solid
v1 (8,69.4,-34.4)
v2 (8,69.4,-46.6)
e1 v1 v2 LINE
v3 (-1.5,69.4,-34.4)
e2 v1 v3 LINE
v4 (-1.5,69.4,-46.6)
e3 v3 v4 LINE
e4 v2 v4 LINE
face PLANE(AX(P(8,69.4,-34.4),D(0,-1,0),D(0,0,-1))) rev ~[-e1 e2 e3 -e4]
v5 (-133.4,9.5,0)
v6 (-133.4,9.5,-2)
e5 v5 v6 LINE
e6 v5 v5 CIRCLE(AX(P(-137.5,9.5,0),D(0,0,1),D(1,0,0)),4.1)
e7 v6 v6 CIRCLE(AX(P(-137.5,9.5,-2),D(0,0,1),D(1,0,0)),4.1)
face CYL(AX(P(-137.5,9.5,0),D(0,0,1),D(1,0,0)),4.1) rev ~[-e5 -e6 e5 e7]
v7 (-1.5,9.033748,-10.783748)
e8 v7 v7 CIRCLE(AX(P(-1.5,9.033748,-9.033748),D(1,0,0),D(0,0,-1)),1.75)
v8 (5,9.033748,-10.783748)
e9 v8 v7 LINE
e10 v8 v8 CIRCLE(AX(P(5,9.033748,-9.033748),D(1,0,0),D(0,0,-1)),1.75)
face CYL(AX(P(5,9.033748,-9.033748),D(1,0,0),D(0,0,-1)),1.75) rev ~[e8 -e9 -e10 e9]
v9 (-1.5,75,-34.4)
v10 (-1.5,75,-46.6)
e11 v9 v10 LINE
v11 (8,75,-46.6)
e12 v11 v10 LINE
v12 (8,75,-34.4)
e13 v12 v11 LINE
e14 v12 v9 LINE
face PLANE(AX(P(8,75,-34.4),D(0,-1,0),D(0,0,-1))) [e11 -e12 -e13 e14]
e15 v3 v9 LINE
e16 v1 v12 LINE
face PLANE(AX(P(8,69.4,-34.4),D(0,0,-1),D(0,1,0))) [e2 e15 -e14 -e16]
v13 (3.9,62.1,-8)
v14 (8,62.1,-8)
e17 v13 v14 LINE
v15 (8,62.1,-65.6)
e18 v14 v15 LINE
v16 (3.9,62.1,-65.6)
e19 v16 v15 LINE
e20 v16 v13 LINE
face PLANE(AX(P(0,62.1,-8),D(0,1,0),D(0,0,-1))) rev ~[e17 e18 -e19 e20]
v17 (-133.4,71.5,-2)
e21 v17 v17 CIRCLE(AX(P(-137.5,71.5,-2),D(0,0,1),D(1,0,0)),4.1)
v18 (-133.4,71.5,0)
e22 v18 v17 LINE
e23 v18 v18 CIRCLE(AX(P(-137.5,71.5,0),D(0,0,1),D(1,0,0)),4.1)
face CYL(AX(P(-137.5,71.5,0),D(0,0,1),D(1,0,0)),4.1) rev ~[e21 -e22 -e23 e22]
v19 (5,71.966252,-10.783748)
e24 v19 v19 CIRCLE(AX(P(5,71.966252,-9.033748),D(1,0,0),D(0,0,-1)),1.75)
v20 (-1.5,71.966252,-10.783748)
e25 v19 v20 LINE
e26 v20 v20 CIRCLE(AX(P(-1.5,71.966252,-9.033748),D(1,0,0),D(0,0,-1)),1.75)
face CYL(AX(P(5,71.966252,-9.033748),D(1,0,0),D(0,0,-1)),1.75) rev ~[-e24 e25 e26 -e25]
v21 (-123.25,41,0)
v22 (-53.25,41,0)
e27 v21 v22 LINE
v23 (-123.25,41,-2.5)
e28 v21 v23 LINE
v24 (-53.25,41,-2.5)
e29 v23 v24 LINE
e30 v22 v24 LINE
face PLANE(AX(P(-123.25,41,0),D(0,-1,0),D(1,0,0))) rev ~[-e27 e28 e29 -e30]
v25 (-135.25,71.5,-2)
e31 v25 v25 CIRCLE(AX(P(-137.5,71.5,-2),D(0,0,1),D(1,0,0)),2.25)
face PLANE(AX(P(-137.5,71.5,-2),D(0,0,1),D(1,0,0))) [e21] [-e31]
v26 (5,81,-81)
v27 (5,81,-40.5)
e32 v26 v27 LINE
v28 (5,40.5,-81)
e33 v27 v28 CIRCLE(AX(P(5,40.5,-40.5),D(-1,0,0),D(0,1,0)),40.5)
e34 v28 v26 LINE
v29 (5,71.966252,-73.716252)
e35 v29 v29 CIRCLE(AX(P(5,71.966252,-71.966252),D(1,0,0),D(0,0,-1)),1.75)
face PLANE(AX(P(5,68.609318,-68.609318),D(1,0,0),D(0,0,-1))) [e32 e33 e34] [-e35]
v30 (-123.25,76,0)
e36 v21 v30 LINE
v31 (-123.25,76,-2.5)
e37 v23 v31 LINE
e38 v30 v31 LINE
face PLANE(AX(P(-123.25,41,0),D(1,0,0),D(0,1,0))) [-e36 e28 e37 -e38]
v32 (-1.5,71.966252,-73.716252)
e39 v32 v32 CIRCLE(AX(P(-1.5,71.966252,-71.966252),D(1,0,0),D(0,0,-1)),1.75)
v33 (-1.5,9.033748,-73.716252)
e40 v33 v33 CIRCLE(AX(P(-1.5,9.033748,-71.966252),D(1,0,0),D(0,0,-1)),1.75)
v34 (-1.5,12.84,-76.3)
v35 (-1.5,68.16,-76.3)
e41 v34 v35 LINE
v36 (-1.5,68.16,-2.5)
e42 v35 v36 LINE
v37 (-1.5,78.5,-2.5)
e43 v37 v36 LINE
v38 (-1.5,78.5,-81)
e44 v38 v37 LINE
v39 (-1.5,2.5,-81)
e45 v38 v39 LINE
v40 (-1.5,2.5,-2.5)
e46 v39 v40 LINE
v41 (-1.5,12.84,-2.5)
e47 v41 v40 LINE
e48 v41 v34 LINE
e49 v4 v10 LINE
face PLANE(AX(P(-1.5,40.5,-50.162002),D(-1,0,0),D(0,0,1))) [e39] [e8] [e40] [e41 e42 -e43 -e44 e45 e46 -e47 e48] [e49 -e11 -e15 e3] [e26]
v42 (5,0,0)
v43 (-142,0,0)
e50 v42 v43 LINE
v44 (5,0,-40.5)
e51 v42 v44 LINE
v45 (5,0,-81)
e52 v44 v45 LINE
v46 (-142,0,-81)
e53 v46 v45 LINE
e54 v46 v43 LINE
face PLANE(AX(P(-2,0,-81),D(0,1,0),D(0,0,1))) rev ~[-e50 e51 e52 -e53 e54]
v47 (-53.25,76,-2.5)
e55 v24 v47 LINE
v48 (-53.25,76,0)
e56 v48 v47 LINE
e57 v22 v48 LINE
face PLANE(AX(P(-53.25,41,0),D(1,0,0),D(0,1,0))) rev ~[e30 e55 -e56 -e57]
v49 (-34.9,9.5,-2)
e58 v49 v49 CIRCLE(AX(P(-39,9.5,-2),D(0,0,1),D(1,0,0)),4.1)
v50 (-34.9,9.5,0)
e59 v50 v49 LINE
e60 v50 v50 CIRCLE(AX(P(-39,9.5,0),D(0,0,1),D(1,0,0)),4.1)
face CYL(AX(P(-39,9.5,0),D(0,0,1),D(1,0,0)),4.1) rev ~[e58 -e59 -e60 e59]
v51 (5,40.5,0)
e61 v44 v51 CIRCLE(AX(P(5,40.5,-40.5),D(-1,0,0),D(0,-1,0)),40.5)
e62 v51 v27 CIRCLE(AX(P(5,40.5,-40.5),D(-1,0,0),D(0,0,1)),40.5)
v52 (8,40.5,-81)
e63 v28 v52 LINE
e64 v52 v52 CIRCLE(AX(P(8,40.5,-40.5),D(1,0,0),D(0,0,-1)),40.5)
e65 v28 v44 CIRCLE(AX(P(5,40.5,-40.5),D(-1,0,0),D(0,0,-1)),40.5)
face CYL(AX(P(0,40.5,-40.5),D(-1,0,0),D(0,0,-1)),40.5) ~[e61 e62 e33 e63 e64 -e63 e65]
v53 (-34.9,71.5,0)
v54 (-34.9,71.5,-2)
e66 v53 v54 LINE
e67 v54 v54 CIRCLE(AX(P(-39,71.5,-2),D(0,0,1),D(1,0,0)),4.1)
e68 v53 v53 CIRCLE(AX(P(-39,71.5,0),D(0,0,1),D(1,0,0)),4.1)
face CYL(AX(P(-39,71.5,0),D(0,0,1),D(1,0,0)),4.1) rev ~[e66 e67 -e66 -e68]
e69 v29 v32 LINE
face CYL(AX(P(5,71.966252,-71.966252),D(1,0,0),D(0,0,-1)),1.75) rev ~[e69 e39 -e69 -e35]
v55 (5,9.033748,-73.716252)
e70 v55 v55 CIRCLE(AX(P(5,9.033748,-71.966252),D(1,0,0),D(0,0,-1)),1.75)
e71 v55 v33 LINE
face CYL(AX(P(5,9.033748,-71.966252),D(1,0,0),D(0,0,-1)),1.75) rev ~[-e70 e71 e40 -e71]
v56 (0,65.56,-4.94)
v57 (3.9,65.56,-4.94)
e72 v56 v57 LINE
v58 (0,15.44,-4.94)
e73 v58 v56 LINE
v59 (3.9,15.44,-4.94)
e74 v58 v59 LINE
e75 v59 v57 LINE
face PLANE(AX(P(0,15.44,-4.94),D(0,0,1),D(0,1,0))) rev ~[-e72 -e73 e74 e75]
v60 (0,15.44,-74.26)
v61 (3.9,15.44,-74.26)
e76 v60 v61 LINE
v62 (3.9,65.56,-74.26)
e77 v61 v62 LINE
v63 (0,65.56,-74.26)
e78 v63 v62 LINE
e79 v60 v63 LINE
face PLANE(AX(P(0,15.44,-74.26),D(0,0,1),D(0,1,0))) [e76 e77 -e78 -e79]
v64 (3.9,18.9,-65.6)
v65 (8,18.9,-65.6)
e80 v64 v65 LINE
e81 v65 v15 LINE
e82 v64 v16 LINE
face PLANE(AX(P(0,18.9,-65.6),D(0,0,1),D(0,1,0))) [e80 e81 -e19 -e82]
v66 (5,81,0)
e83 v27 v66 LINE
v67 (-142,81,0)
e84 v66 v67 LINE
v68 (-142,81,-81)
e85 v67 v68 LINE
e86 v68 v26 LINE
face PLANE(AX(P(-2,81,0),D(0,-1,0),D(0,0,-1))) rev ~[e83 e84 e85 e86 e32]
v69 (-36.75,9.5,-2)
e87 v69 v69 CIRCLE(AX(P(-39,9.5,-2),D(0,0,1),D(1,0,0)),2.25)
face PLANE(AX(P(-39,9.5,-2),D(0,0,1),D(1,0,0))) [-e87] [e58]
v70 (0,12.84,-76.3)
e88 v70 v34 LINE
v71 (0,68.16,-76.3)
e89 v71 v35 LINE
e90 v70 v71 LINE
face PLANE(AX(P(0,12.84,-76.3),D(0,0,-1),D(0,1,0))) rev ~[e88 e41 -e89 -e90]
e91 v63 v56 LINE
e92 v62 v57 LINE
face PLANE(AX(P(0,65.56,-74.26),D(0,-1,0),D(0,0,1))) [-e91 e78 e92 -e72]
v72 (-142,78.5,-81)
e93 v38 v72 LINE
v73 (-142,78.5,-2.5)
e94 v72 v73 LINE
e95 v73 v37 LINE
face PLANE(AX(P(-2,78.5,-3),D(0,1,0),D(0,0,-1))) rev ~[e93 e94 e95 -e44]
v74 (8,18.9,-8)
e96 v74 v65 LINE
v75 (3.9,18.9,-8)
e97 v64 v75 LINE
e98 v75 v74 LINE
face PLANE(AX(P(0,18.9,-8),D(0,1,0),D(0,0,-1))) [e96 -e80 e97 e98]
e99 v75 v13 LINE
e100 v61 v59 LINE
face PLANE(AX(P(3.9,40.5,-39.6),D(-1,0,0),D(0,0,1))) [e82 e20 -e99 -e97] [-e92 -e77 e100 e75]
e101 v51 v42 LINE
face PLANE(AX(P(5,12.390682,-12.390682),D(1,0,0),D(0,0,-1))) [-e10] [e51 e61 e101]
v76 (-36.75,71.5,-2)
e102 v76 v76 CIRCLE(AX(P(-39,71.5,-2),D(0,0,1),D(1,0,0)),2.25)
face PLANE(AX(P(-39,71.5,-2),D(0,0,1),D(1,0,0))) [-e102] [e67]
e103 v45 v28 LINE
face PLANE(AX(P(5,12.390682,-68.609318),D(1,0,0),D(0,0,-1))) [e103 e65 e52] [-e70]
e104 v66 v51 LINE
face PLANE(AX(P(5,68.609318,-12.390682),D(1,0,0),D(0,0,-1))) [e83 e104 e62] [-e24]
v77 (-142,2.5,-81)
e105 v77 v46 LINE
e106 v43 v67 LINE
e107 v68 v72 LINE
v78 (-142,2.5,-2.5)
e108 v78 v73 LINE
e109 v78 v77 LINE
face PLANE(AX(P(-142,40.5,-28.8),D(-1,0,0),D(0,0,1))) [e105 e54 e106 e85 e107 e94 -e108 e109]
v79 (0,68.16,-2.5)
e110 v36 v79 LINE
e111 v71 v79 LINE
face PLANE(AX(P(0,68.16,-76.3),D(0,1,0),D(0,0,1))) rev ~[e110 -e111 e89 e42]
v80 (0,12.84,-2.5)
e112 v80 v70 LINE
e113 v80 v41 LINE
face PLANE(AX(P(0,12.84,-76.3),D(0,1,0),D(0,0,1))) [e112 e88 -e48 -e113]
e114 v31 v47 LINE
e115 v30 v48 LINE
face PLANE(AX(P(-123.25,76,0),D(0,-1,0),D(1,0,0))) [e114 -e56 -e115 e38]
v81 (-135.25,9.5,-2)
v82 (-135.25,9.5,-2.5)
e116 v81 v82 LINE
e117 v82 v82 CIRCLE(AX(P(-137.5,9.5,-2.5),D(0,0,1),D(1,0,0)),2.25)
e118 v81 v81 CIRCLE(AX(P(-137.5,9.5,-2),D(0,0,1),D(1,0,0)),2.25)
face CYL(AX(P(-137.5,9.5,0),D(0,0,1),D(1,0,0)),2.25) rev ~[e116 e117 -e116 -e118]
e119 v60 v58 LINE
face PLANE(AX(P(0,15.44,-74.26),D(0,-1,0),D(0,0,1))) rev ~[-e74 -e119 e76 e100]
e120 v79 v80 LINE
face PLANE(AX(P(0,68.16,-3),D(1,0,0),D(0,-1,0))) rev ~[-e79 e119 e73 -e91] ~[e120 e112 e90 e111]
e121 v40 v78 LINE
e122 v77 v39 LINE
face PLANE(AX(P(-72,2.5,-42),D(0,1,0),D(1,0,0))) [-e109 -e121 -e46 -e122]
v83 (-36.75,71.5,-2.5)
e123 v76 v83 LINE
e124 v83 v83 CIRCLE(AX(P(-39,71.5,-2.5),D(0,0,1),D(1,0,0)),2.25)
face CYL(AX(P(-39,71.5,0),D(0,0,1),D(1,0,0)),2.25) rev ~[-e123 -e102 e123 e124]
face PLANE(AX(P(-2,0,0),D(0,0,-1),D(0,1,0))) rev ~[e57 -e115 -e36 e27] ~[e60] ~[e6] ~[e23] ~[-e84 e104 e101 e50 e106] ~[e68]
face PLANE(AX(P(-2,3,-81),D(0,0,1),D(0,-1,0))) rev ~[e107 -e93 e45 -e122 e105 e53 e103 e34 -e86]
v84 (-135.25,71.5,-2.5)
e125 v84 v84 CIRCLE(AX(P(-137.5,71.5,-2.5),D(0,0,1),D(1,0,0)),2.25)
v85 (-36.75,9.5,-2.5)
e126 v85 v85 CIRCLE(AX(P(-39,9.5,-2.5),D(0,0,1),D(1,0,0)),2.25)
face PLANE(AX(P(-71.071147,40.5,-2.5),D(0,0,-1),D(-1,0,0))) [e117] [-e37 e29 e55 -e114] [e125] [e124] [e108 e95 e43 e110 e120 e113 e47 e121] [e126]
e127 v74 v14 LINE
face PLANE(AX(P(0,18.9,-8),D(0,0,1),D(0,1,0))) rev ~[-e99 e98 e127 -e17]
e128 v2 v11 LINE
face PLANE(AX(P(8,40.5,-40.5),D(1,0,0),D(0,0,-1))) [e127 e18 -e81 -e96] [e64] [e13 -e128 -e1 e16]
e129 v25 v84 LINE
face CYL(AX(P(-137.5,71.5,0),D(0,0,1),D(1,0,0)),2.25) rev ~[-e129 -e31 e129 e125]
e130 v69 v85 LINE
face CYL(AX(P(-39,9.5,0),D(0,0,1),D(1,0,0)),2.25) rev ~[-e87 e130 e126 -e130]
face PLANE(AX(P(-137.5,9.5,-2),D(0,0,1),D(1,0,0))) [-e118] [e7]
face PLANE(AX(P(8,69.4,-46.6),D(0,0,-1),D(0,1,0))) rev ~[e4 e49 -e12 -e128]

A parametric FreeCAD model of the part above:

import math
import FreeCAD as App
import Part
import Sketcher

V = App.Vector
Q = App.Units.Quantity


def add_polygon(sketch, points):
    """Adds a closed chain of lines whose ends are joined by coincident constraints."""
    first, n = sketch.GeometryCount, len(points)
    for a, b in zip(points, points[1:] + points[:1]):
        sketch.addGeometry(Part.LineSegment(App.Vector(*a, 0), App.Vector(*b, 0)), False)
    for i in range(n):
        sketch.addConstraint(Sketcher.Constraint("Coincident", first + i, 2, first + (i + 1) % n, 1))

doc = App.newDocument("Part")
body = doc.addObject("PartDesign::Body", "Body")

# Sketch on YZ plane
sketch1 = body.newObject("Sketcher::SketchObject", "Sketch")
sketch1.AttachmentSupport = (doc.getObject("YZ_Plane"), [""])
sketch1.MapMode = "FlatFace"
sketch1.addGeometry(Part.Circle(V(40, -40, 0), V(0, 0, 1), 40), False)  # 0
add_polygon(sketch1, [(19, -66), (19, -8), (62, -8), (62, -66)])  # lines 1-4
sketch1.addConstraint(Sketcher.Constraint("Vertical", 1))
sketch1.addConstraint(Sketcher.Constraint("Horizontal", 2))
sketch1.addConstraint(Sketcher.Constraint("Vertical", 3))
sketch1.addConstraint(Sketcher.Constraint("Horizontal", 4))
sketch1.addConstraint(Sketcher.Constraint("Diameter", 0, Q("81 mm")))
sketch1.addConstraint(Sketcher.Constraint("DistanceX", 2, 1, 2, 2, Q("43.2 mm")))
sketch1.addConstraint(Sketcher.Constraint("DistanceY", 1, 1, 1, 2, Q("57.6 mm")))
sketch1.addConstraint(Sketcher.Constraint("DistanceY", 1, 2, -1, 1, Q("8 mm")))
sketch1.addConstraint(Sketcher.Constraint("DistanceX", -1, 1, 0, 3, Q("40.5 mm")))
sketch1.addConstraint(Sketcher.Constraint("DistanceY", 0, 3, -1, 1, Q("40.5 mm")))
sketch1.addConstraint(Sketcher.Constraint("DistanceX", -1, 1, 1, 2, Q("18.9 mm")))
pad1 = body.newObject("PartDesign::Pad", "Pad")
pad1.Profile = sketch1
pad1.Length = 8

# Sketch on YZ plane
sketch2 = body.newObject("Sketcher::SketchObject", "Sketch001")
sketch2.AttachmentSupport = (doc.getObject("YZ_Plane"), [""])
sketch2.MapMode = "FlatFace"
sketch2.addGeometry(Part.LineSegment(V(81, -40, 0), V(81, 0, 0)), False)
sketch2.addGeometry(Part.LineSegment(V(81, 0, 0), V(40, 0, 0)), False)
sketch2.addGeometry(Part.ArcOfCircle(Part.Circle(V(40, -40, 0), V(0, 0, 1), 40), math.radians(0), math.radians(90)), False)
sketch2.addGeometry(Part.LineSegment(V(81, -81, 0), V(81, -40, 0)), False)
sketch2.addGeometry(Part.ArcOfCircle(Part.Circle(V(40, -40, 0), V(0, 0, 1), 40), math.radians(-90), math.radians(0)), False)
sketch2.addGeometry(Part.LineSegment(V(40, -81, 0), V(81, -81, 0)), False)
sketch2.addGeometry(Part.LineSegment(V(0, -81, 0), V(40, -81, 0)), False)
sketch2.addGeometry(Part.ArcOfCircle(Part.Circle(V(40, -40, 0), V(0, 0, 1), 40), math.radians(180), math.radians(270)), False)
sketch2.addGeometry(Part.LineSegment(V(0, -40, 0), V(0, -81, 0)), False)
sketch2.addGeometry(Part.ArcOfCircle(Part.Circle(V(40, -40, 0), V(0, 0, 1), 40), math.radians(90), math.radians(180)), False)
sketch2.addGeometry(Part.LineSegment(V(40, 0, 0), V(0, 0, 0)), False)
sketch2.addGeometry(Part.LineSegment(V(0, 0, 0), V(0, -40, 0)), False)
sketch2.addConstraint(Sketcher.Constraint("Coincident", 0, 2, 1, 1))
sketch2.addConstraint(Sketcher.Constraint("Tangent", 1, 2, 2, 2))
sketch2.addConstraint(Sketcher.Constraint("Tangent", 2, 1, 0, 1))
sketch2.addConstraint(Sketcher.Constraint("Tangent", 3, 2, 4, 2))
sketch2.addConstraint(Sketcher.Constraint("Tangent", 4, 1, 5, 1))
sketch2.addConstraint(Sketcher.Constraint("Coincident", 5, 2, 3, 1))
sketch2.addConstraint(Sketcher.Constraint("Tangent", 6, 2, 7, 2))
sketch2.addConstraint(Sketcher.Constraint("Tangent", 7, 1, 8, 1))
sketch2.addConstraint(Sketcher.Constraint("Coincident", 8, 2, 6, 1))
sketch2.addConstraint(Sketcher.Constraint("Tangent", 9, 1, 10, 1))
sketch2.addConstraint(Sketcher.Constraint("Coincident", 10, 2, 11, 1))
sketch2.addConstraint(Sketcher.Constraint("Tangent", 11, 2, 9, 2))
sketch2.addConstraint(Sketcher.Constraint("Vertical", 0))
sketch2.addConstraint(Sketcher.Constraint("Horizontal", 1))
sketch2.addConstraint(Sketcher.Constraint("Vertical", 3))
sketch2.addConstraint(Sketcher.Constraint("Horizontal", 5))
sketch2.addConstraint(Sketcher.Constraint("Horizontal", 6))
sketch2.addConstraint(Sketcher.Constraint("Vertical", 8))
sketch2.addConstraint(Sketcher.Constraint("Horizontal", 10))
sketch2.addConstraint(Sketcher.Constraint("Vertical", 11))
sketch2.addConstraint(Sketcher.Constraint("Coincident", 10, 2, -1, 1))
sketch2.addConstraint(Sketcher.Constraint("Coincident", 4, 3, 2, 3))
sketch2.addConstraint(Sketcher.Constraint("Coincident", 7, 3, 2, 3))
sketch2.addConstraint(Sketcher.Constraint("Coincident", 9, 3, 2, 3))
sketch2.addConstraint(Sketcher.Constraint("Equal", 2, 4))
sketch2.addConstraint(Sketcher.Constraint("Equal", 4, 7))
sketch2.addConstraint(Sketcher.Constraint("Equal", 7, 9))
sketch2.addConstraint(Sketcher.Constraint("Radius", 2, Q("40.5 mm")))
pad2 = body.newObject("PartDesign::Pad", "Pad001")
pad2.Profile = sketch2
pad2.Length = 5

# Sketch on YZ plane
sketch3 = body.newObject("Sketcher::SketchObject", "Sketch002")
sketch3.AttachmentSupport = (doc.getObject("YZ_Plane"), [""])
sketch3.MapMode = "FlatFace"
add_polygon(sketch3, [(66, -74), (15, -74), (15, -5), (66, -5)])  # lines 0-3
add_polygon(sketch3, [(19, -8), (19, -66), (62, -66), (62, -8)])  # lines 4-7
sketch3.addConstraint(Sketcher.Constraint("Horizontal", 0))
sketch3.addConstraint(Sketcher.Constraint("Vertical", 1))
sketch3.addConstraint(Sketcher.Constraint("Horizontal", 2))
sketch3.addConstraint(Sketcher.Constraint("Vertical", 3))
sketch3.addConstraint(Sketcher.Constraint("Vertical", 4))
sketch3.addConstraint(Sketcher.Constraint("Horizontal", 5))
sketch3.addConstraint(Sketcher.Constraint("Vertical", 6))
sketch3.addConstraint(Sketcher.Constraint("Horizontal", 7))
sketch3.addConstraint(Sketcher.Constraint("DistanceX", 5, 1, 5, 2, Q("43.2 mm")))
sketch3.addConstraint(Sketcher.Constraint("DistanceY", 4, 2, 4, 1, Q("57.6 mm")))
sketch3.addConstraint(Sketcher.Constraint("DistanceY", 6, 2, -1, 1, Q("8 mm")))
sketch3.addConstraint(Sketcher.Constraint("DistanceX", 0, 2, 0, 1, Q("50.12 mm")))
sketch3.addConstraint(Sketcher.Constraint("DistanceY", 1, 1, 1, 2, Q("69.32 mm")))
sketch3.addConstraint(Sketcher.Constraint("DistanceX", -1, 1, 4, 2, Q("18.9 mm")))
sketch3.addConstraint(Sketcher.Constraint("DistanceX", -1, 1, 0, 2, Q("15.44 mm")))
sketch3.addConstraint(Sketcher.Constraint("DistanceY", 0, 2, -1, 1, Q("74.26 mm")))
pocket1 = body.newObject("PartDesign::Pocket", "Pocket")
pocket1.Profile = sketch3
pocket1.Length = 3.9
pocket1.Reversed = True

# Sketch on YZ plane
sketch4 = body.newObject("Sketcher::SketchObject", "Sketch003")
sketch4.AttachmentSupport = (doc.getObject("YZ_Plane"), [""])
sketch4.MapMode = "FlatFace"
add_polygon(sketch4, [(81, -81), (0, -81), (0, 0), (81, 0)])  # lines 0-3
add_polygon(sketch4, [(13, -3), (13, -76), (68, -76), (68, -3)])  # lines 4-7
sketch4.addConstraint(Sketcher.Constraint("Horizontal", 0))
sketch4.addConstraint(Sketcher.Constraint("Vertical", 1))
sketch4.addConstraint(Sketcher.Constraint("Horizontal", 2))
sketch4.addConstraint(Sketcher.Constraint("Vertical", 3))
sketch4.addConstraint(Sketcher.Constraint("Vertical", 4))
sketch4.addConstraint(Sketcher.Constraint("Horizontal", 5))
sketch4.addConstraint(Sketcher.Constraint("Vertical", 6))
sketch4.addConstraint(Sketcher.Constraint("Horizontal", 7))
sketch4.addConstraint(Sketcher.Constraint("Coincident", 1, 2, -1, 1))
sketch4.addConstraint(Sketcher.Constraint("Equal", 2, 1))
sketch4.addConstraint(Sketcher.Constraint("DistanceX", 0, 2, 0, 1, Q("81 mm")))
sketch4.addConstraint(Sketcher.Constraint("DistanceY", 4, 2, 4, 1, Q("73.3 mm")))
sketch4.addConstraint(Sketcher.Constraint("DistanceY", 6, 2, -1, 1, Q("3 mm")))
sketch4.addConstraint(Sketcher.Constraint("DistanceX", 5, 1, 5, 2, Q("55.32 mm")))
sketch4.addConstraint(Sketcher.Constraint("DistanceX", -1, 1, 4, 2, Q("12.84 mm")))
pad3 = body.newObject("PartDesign::Pad", "Pad002")
pad3.Profile = sketch4
pad3.Length = 2
pad3.Reversed = True

# Sketch on YZ plane
sketch5 = body.newObject("Sketcher::SketchObject", "Sketch004")
sketch5.AttachmentSupport = (doc.getObject("YZ_Plane"), [""])
sketch5.MapMode = "FlatFace"
sketch5.AttachmentOffset = App.Placement(V(0, 0, -2), App.Rotation())
add_polygon(sketch5, [(0, -81), (0, 0), (81, 0), (81, -81), (78, -81), (78, -3), (3, -3), (3, -81)])  # lines 0-7
sketch5.addConstraint(Sketcher.Constraint("Vertical", 0))
sketch5.addConstraint(Sketcher.Constraint("Horizontal", 1))
sketch5.addConstraint(Sketcher.Constraint("Vertical", 2))
sketch5.addConstraint(Sketcher.Constraint("Horizontal", 3))
sketch5.addConstraint(Sketcher.Constraint("Vertical", 4))
sketch5.addConstraint(Sketcher.Constraint("Horizontal", 5))
sketch5.addConstraint(Sketcher.Constraint("Vertical", 6))
sketch5.addConstraint(Sketcher.Constraint("Horizontal", 7))
sketch5.addConstraint(Sketcher.Constraint("Coincident", 0, 2, -1, 1))
sketch5.addConstraint(Sketcher.Constraint("Horizontal", 3, 2, 6, 2))
sketch5.addConstraint(Sketcher.Constraint("Equal", 3, 7))
sketch5.addConstraint(Sketcher.Constraint("Equal", 1, 0))
sketch5.addConstraint(Sketcher.Constraint("DistanceX", 1, 1, 1, 2, Q("81 mm")))
sketch5.addConstraint(Sketcher.Constraint("DistanceX", 3, 2, 3, 1, Q("3 mm")))
sketch5.addConstraint(Sketcher.Constraint("DistanceY", 4, 1, 4, 2, Q("78 mm")))
pad4 = body.newObject("PartDesign::Pad", "Pad003")
pad4.Profile = sketch5
pad4.Length = 140
pad4.Reversed = True

# Sketch on XY plane
sketch6 = body.newObject("Sketcher::SketchObject", "Sketch005")
sketch6.AttachmentSupport = (doc.getObject("XY_Plane"), [""])
sketch6.MapMode = "FlatFace"
sketch6.addGeometry(Part.Circle(V(-137.5, 71.5, 0), V(0, 0, 1), 2.2), False)
sketch6.addConstraint(Sketcher.Constraint("Diameter", 0, Q("4.5 mm")))
sketch6.addConstraint(Sketcher.Constraint("DistanceX", 0, 3, -1, 1, Q("137.5 mm")))
sketch6.addConstraint(Sketcher.Constraint("DistanceY", -1, 1, 0, 3, Q("71.5 mm")))
pocket2 = body.newObject("PartDesign::Pocket", "Pocket001")
pocket2.Profile = sketch6
pocket2.Type = "UpToFirst"

# Sketch on XY plane
sketch7 = body.newObject("Sketcher::SketchObject", "Sketch006")
sketch7.AttachmentSupport = (doc.getObject("XY_Plane"), [""])
sketch7.MapMode = "FlatFace"
sketch7.addGeometry(Part.Circle(V(-39, 71.5, 0), V(0, 0, 1), 2.2), False)
sketch7.addConstraint(Sketcher.Constraint("Diameter", 0, Q("4.5 mm")))
sketch7.addConstraint(Sketcher.Constraint("DistanceX", 0, 3, -1, 1, Q("39 mm")))
sketch7.addConstraint(Sketcher.Constraint("DistanceY", -1, 1, 0, 3, Q("71.5 mm")))
pocket3 = body.newObject("PartDesign::Pocket", "Pocket002")
pocket3.Profile = sketch7
pocket3.Type = "UpToFirst"

# Sketch on XY plane
sketch8 = body.newObject("Sketcher::SketchObject", "Sketch007")
sketch8.AttachmentSupport = (doc.getObject("XY_Plane"), [""])
sketch8.MapMode = "FlatFace"
sketch8.addGeometry(Part.Circle(V(-137.5, 9.5, 0), V(0, 0, 1), 2.2), False)
sketch8.addConstraint(Sketcher.Constraint("Diameter", 0, Q("4.5 mm")))
sketch8.addConstraint(Sketcher.Constraint("DistanceX", 0, 3, -1, 1, Q("137.5 mm")))
sketch8.addConstraint(Sketcher.Constraint("DistanceY", -1, 1, 0, 3, Q("9.5 mm")))
pocket4 = body.newObject("PartDesign::Pocket", "Pocket003")
pocket4.Profile = sketch8
pocket4.Type = "UpToFirst"

# Sketch on XY plane
sketch9 = body.newObject("Sketcher::SketchObject", "Sketch008")
sketch9.AttachmentSupport = (doc.getObject("XY_Plane"), [""])
sketch9.MapMode = "FlatFace"
sketch9.addGeometry(Part.Circle(V(-39, 9.5, 0), V(0, 0, 1), 2.2), False)
sketch9.addConstraint(Sketcher.Constraint("Diameter", 0, Q("4.5 mm")))
sketch9.addConstraint(Sketcher.Constraint("DistanceX", 0, 3, -1, 1, Q("39 mm")))
sketch9.addConstraint(Sketcher.Constraint("DistanceY", -1, 1, 0, 3, Q("9.5 mm")))
pocket5 = body.newObject("PartDesign::Pocket", "Pocket004")
pocket5.Profile = sketch9
pocket5.Type = "UpToFirst"

# Sketch on XY plane
sketch10 = body.newObject("Sketcher::SketchObject", "Sketch009")
sketch10.AttachmentSupport = (doc.getObject("XY_Plane"), [""])
sketch10.MapMode = "FlatFace"
sketch10.addGeometry(Part.Circle(V(-137.5, 71.5, 0), V(0, 0, 1), 4.1), False)
sketch10.addGeometry(Part.Circle(V(-39, 71.5, 0), V(0, 0, 1), 4.1), False)
sketch10.addGeometry(Part.Circle(V(-39, 9.5, 0), V(0, 0, 1), 4.1), False)
sketch10.addGeometry(Part.Circle(V(-137.5, 9.5, 0), V(0, 0, 1), 4.1), False)
sketch10.addConstraint(Sketcher.Constraint("Equal", 0, 1))
sketch10.addConstraint(Sketcher.Constraint("Equal", 1, 2))
sketch10.addConstraint(Sketcher.Constraint("Equal", 2, 3))
sketch10.addConstraint(Sketcher.Constraint("Horizontal", 0, 3, 1, 3))
sketch10.addConstraint(Sketcher.Constraint("Horizontal", 2, 3, 3, 3))
sketch10.addConstraint(Sketcher.Constraint("Vertical", 1, 3, 2, 3))
sketch10.addConstraint(Sketcher.Constraint("Vertical", 0, 3, 3, 3))
sketch10.addConstraint(Sketcher.Constraint("Diameter", 0, Q("8.2 mm")))
sketch10.addConstraint(Sketcher.Constraint("DistanceX", 1, 3, -1, 1, Q("39 mm")))
sketch10.addConstraint(Sketcher.Constraint("DistanceY", 2, 3, 1, 3, Q("62 mm")))
sketch10.addConstraint(Sketcher.Constraint("DistanceX", 0, 3, -1, 1, Q("137.5 mm")))
sketch10.addConstraint(Sketcher.Constraint("DistanceY", -1, 1, 0, 3, Q("71.5 mm")))
pocket6 = body.newObject("PartDesign::Pocket", "Pocket005")
pocket6.Profile = sketch10
pocket6.Length = 2

# Sketch on XY plane
sketch11 = body.newObject("Sketcher::SketchObject", "Sketch010")
sketch11.AttachmentSupport = (doc.getObject("XY_Plane"), [""])
sketch11.MapMode = "FlatFace"
add_polygon(sketch11, [(-123, 76), (-123, 41), (-53, 41), (-53, 76)])  # lines 0-3
sketch11.addConstraint(Sketcher.Constraint("Vertical", 0))
sketch11.addConstraint(Sketcher.Constraint("Horizontal", 1))
sketch11.addConstraint(Sketcher.Constraint("Vertical", 2))
sketch11.addConstraint(Sketcher.Constraint("Horizontal", 3))
sketch11.addConstraint(Sketcher.Constraint("DistanceX", 1, 1, 1, 2, Q("70 mm")))
sketch11.addConstraint(Sketcher.Constraint("DistanceY", 0, 2, 0, 1, Q("35 mm")))
sketch11.addConstraint(Sketcher.Constraint("DistanceY", -1, 1, 0, 2, Q("41 mm")))
sketch11.addConstraint(Sketcher.Constraint("DistanceX", 0, 2, -1, 1, Q("123.25 mm")))
pocket7 = body.newObject("PartDesign::Pocket", "Pocket006")
pocket7.Profile = sketch11
pocket7.Type = "UpToFirst"

# Sketch on YZ plane
sketch12 = body.newObject("Sketcher::SketchObject", "Sketch011")
sketch12.AttachmentSupport = (doc.getObject("YZ_Plane"), [""])
sketch12.MapMode = "FlatFace"
sketch12.AttachmentOffset = App.Placement(V(0, 0, 5), App.Rotation())
sketch12.addGeometry(Part.Circle(V(72, -9, 0), V(0, 0, 1), 1.8), False)
sketch12.addConstraint(Sketcher.Constraint("Diameter", 0, Q("3.5 mm")))
sketch12.addConstraint(Sketcher.Constraint("DistanceX", -1, 1, 0, 3, Q("71.966252 mm")))
sketch12.addConstraint(Sketcher.Constraint("DistanceY", 0, 3, -1, 1, Q("9.033748 mm")))
pocket8 = body.newObject("PartDesign::Pocket", "Pocket007")
pocket8.Profile = sketch12
pocket8.Type = "UpToFirst"

# Sketch on YZ plane
sketch13 = body.newObject("Sketcher::SketchObject", "Sketch012")
sketch13.AttachmentSupport = (doc.getObject("YZ_Plane"), [""])
sketch13.MapMode = "FlatFace"
sketch13.AttachmentOffset = App.Placement(V(0, 0, 5), App.Rotation())
sketch13.addGeometry(Part.Circle(V(72, -72, 0), V(0, 0, 1), 1.8), False)
sketch13.addConstraint(Sketcher.Constraint("Diameter", 0, Q("3.5 mm")))
sketch13.addConstraint(Sketcher.Constraint("DistanceX", -1, 1, 0, 3, Q("71.966252 mm")))
sketch13.addConstraint(Sketcher.Constraint("DistanceY", 0, 3, -1, 1, Q("71.966252 mm")))
pocket9 = body.newObject("PartDesign::Pocket", "Pocket008")
pocket9.Profile = sketch13
pocket9.Type = "UpToFirst"

# Sketch on YZ plane
sketch14 = body.newObject("Sketcher::SketchObject", "Sketch013")
sketch14.AttachmentSupport = (doc.getObject("YZ_Plane"), [""])
sketch14.MapMode = "FlatFace"
sketch14.AttachmentOffset = App.Placement(V(0, 0, 5), App.Rotation())
sketch14.addGeometry(Part.Circle(V(9, -72, 0), V(0, 0, 1), 1.8), False)
sketch14.addConstraint(Sketcher.Constraint("Diameter", 0, Q("3.5 mm")))
sketch14.addConstraint(Sketcher.Constraint("DistanceX", -1, 1, 0, 3, Q("9.033748 mm")))
sketch14.addConstraint(Sketcher.Constraint("DistanceY", 0, 3, -1, 1, Q("71.966252 mm")))
pocket10 = body.newObject("PartDesign::Pocket", "Pocket009")
pocket10.Profile = sketch14
pocket10.Type = "UpToFirst"

# Sketch on YZ plane
sketch15 = body.newObject("Sketcher::SketchObject", "Sketch014")
sketch15.AttachmentSupport = (doc.getObject("YZ_Plane"), [""])
sketch15.MapMode = "FlatFace"
sketch15.AttachmentOffset = App.Placement(V(0, 0, 5), App.Rotation())
sketch15.addGeometry(Part.Circle(V(9, -9, 0), V(0, 0, 1), 1.8), False)
sketch15.addConstraint(Sketcher.Constraint("Diameter", 0, Q("3.5 mm")))
sketch15.addConstraint(Sketcher.Constraint("DistanceX", -1, 1, 0, 3, Q("9.033748 mm")))
sketch15.addConstraint(Sketcher.Constraint("DistanceY", 0, 3, -1, 1, Q("9.033748 mm")))
pocket11 = body.newObject("PartDesign::Pocket", "Pocket010")
pocket11.Profile = sketch15
pocket11.Type = "UpToFirst"

# Sketch on YZ plane
sketch16 = body.newObject("Sketcher::SketchObject", "Sketch015")
sketch16.AttachmentSupport = (doc.getObject("YZ_Plane"), [""])
sketch16.MapMode = "FlatFace"
sketch16.AttachmentOffset = App.Placement(V(0, 0, 8), App.Rotation())
add_polygon(sketch16, [(75, -34), (69, -34), (69, -47), (75, -47)])  # lines 0-3
sketch16.addConstraint(Sketcher.Constraint("Horizontal", 0))
sketch16.addConstraint(Sketcher.Constraint("Vertical", 1))
sketch16.addConstraint(Sketcher.Constraint("Horizontal", 2))
sketch16.addConstraint(Sketcher.Constraint("Vertical", 3))
sketch16.addConstraint(Sketcher.Constraint("DistanceX", 0, 2, 0, 1, Q("5.6 mm")))
sketch16.addConstraint(Sketcher.Constraint("DistanceY", 1, 2, 1, 1, Q("12.2 mm")))
sketch16.addConstraint(Sketcher.Constraint("DistanceX", -1, 1, 2, 2, Q("75 mm")))
sketch16.addConstraint(Sketcher.Constraint("DistanceY", 0, 2, -1, 1, Q("34.4 mm")))
pocket12 = body.newObject("PartDesign::Pocket", "Pocket011")
pocket12.Profile = sketch16
pocket12.Type = "UpToFirst"

# Sketch on XZ plane
sketch17 = body.newObject("Sketcher::SketchObject", "Sketch016")
sketch17.AttachmentSupport = (doc.getObject("XZ_Plane"), [""])
sketch17.MapMode = "FlatFace"
sketch17.AttachmentOffset = App.Placement(V(0, 0, -78), App.Rotation())
add_polygon(sketch17, [(-142, -3), (-142, -81), (-2, -81), (-2, -3)])  # lines 0-3
sketch17.addConstraint(Sketcher.Constraint("Vertical", 0))
sketch17.addConstraint(Sketcher.Constraint("Horizontal", 1))
sketch17.addConstraint(Sketcher.Constraint("Vertical", 2))
sketch17.addConstraint(Sketcher.Constraint("Horizontal", 3))
sketch17.addConstraint(Sketcher.Constraint("DistanceX", 1, 1, 1, 2, Q("140 mm")))
sketch17.addConstraint(Sketcher.Constraint("DistanceY", 0, 2, 0, 1, Q("78 mm")))
sketch17.addConstraint(Sketcher.Constraint("DistanceX", 0, 2, -1, 1, Q("142 mm")))
sketch17.addConstraint(Sketcher.Constraint("DistanceY", 0, 2, -1, 1, Q("81 mm")))
pocket13 = body.newObject("PartDesign::Pocket", "Pocket012")
pocket13.Profile = sketch17
pocket13.Length = 0.5

# Sketch on XZ plane
sketch18 = body.newObject("Sketcher::SketchObject", "Sketch017")
sketch18.AttachmentSupport = (doc.getObject("XZ_Plane"), [""])
sketch18.MapMode = "FlatFace"
sketch18.AttachmentOffset = App.Placement(V(0, 0, -3), App.Rotation())
add_polygon(sketch18, [(-142, -81), (-142, -3), (-2, -3), (-2, -81)])  # lines 0-3
sketch18.addConstraint(Sketcher.Constraint("Vertical", 0))
sketch18.addConstraint(Sketcher.Constraint("Horizontal", 1))
sketch18.addConstraint(Sketcher.Constraint("Vertical", 2))
sketch18.addConstraint(Sketcher.Constraint("Horizontal", 3))
sketch18.addConstraint(Sketcher.Constraint("DistanceX", 1, 1, 1, 2, Q("140 mm")))
sketch18.addConstraint(Sketcher.Constraint("DistanceY", 0, 1, 0, 2, Q("78 mm")))
sketch18.addConstraint(Sketcher.Constraint("DistanceX", 0, 2, -1, 1, Q("142 mm")))
sketch18.addConstraint(Sketcher.Constraint("DistanceY", 0, 2, -1, 1, Q("3 mm")))
pocket14 = body.newObject("PartDesign::Pocket", "Pocket013")
pocket14.Profile = sketch18
pocket14.Length = 0.5
pocket14.Reversed = True

# Sketch on YZ plane
sketch19 = body.newObject("Sketcher::SketchObject", "Sketch018")
sketch19.AttachmentSupport = (doc.getObject("YZ_Plane"), [""])
sketch19.MapMode = "FlatFace"
sketch19.AttachmentOffset = App.Placement(V(0, 0, -2), App.Rotation())
add_polygon(sketch19, [(78, -81), (2, -81), (2, -3), (13, -3), (13, -76), (68, -76), (68, -3), (78, -3)])  # lines 0-7
sketch19.addConstraint(Sketcher.Constraint("Horizontal", 0))
sketch19.addConstraint(Sketcher.Constraint("Vertical", 1))
sketch19.addConstraint(Sketcher.Constraint("Horizontal", 2))
sketch19.addConstraint(Sketcher.Constraint("Vertical", 3))
sketch19.addConstraint(Sketcher.Constraint("Horizontal", 4))
sketch19.addConstraint(Sketcher.Constraint("Vertical", 5))
sketch19.addConstraint(Sketcher.Constraint("Horizontal", 6))
sketch19.addConstraint(Sketcher.Constraint("Vertical", 7))
sketch19.addConstraint(Sketcher.Constraint("Horizontal", 2, 2, 5, 2))
sketch19.addConstraint(Sketcher.Constraint("Equal", 2, 6))
sketch19.addConstraint(Sketcher.Constraint("DistanceX", 0, 2, 0, 1, Q("76 mm")))
sketch19.addConstraint(Sketcher.Constraint("DistanceY", 1, 1, 1, 2, Q("78 mm")))
sketch19.addConstraint(Sketcher.Constraint("DistanceY", 3, 2, 3, 1, Q("73.3 mm")))
sketch19.addConstraint(Sketcher.Constraint("DistanceY", 0, 2, -1, 1, Q("81 mm")))
sketch19.addConstraint(Sketcher.Constraint("DistanceX", 2, 1, 2, 2, Q("10.34 mm")))
sketch19.addConstraint(Sketcher.Constraint("DistanceX", -1, 1, 0, 2, Q("2.5 mm")))
pocket15 = body.newObject("PartDesign::Pocket", "Pocket014")
pocket15.Profile = sketch19
pocket15.Length = 0.5
pocket15.Reversed = True

# Sketch on XY plane
sketch20 = body.newObject("Sketcher::SketchObject", "Sketch019")
sketch20.AttachmentSupport = (doc.getObject("XY_Plane"), [""])
sketch20.MapMode = "FlatFace"
sketch20.AttachmentOffset = App.Placement(V(0, 0, -3), App.Rotation())
add_polygon(sketch20, [(-1.5, 78.5), (-1.5, 68.2), (0, 68.2), (0, 12.8), (-1.5, 12.8), (-1.5, 2.5), (-142, 2.5), (-142, 78.5)])  # lines 0-7
sketch20.addConstraint(Sketcher.Constraint("Vertical", 0))
sketch20.addConstraint(Sketcher.Constraint("Horizontal", 1))
sketch20.addConstraint(Sketcher.Constraint("Vertical", 2))
sketch20.addConstraint(Sketcher.Constraint("Horizontal", 3))
sketch20.addConstraint(Sketcher.Constraint("Vertical", 4))
sketch20.addConstraint(Sketcher.Constraint("Horizontal", 5))
sketch20.addConstraint(Sketcher.Constraint("Vertical", 6))
sketch20.addConstraint(Sketcher.Constraint("Horizontal", 7))
sketch20.addConstraint(Sketcher.Constraint("PointOnObject", 1, 2, -2))
sketch20.addConstraint(Sketcher.Constraint("Vertical", 0, 2, 3, 2))
sketch20.addConstraint(Sketcher.Constraint("Equal", 0, 4))
sketch20.addConstraint(Sketcher.Constraint("DistanceY", 6, 1, 6, 2, Q("76 mm")))
sketch20.addConstraint(Sketcher.Constraint("DistanceX", 1, 1, 1, 2, Q("1.5 mm")))
sketch20.addConstraint(Sketcher.Constraint("DistanceX", 5, 2, 5, 1, Q("140.5 mm")))
sketch20.addConstraint(Sketcher.Constraint("DistanceY", 0, 2, 0, 1, Q("10.34 mm")))
sketch20.addConstraint(Sketcher.Constraint("DistanceY", -1, 1, 4, 2, Q("2.5 mm")))
pocket16 = body.newObject("PartDesign::Pocket", "Pocket015")
pocket16.Profile = sketch20
pocket16.Length = 0.5
pocket16.Reversed = True

doc.recompute()
